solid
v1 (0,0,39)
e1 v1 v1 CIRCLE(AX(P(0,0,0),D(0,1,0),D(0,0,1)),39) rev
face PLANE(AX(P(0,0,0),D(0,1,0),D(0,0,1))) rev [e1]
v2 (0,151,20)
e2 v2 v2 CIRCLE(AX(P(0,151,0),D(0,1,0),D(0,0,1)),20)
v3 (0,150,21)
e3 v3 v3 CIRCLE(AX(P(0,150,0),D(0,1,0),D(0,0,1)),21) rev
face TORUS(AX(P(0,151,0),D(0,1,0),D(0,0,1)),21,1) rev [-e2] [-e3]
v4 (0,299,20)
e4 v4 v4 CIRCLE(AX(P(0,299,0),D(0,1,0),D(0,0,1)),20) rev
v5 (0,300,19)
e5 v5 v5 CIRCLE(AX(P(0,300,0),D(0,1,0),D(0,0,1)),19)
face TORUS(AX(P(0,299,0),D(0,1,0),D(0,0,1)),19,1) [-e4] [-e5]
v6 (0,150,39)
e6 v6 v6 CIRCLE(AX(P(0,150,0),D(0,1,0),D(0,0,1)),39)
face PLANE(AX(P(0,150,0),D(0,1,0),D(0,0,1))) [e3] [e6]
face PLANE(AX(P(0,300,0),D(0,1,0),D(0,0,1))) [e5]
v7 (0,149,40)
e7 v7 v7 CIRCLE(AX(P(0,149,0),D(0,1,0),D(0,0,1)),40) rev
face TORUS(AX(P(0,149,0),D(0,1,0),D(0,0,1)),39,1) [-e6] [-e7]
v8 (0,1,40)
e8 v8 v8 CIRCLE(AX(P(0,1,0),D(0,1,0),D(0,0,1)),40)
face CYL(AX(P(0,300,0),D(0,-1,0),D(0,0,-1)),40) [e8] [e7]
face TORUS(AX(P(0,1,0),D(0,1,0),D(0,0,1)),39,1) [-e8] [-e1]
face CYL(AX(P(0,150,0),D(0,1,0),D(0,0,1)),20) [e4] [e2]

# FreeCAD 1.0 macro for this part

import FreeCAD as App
import Part
import Sketcher

V = App.Vector
Q = App.Units.Quantity


def edges_at(feature, points):
    """Names of the edges that pass closest to the given points."""
    edges = feature.Shape.Edges
    near = lambda p: min(range(len(edges)), key=lambda i: edges[i].distToShape(Part.Vertex(*p))[0])
    return sorted({f"Edge{near(p) + 1}" for p in points})

doc = App.newDocument("Part")
body = doc.addObject("PartDesign::Body", "Body")

# Sketch on XZ plane
sketch1 = body.newObject("Sketcher::SketchObject", "Sketch")
sketch1.AttachmentSupport = (doc.getObject("XZ_Plane"), [""])
sketch1.MapMode = "FlatFace"
sketch1.addGeometry(Part.Circle(V(0, 0, 0), V(0, 0, 1), 40), False)
sketch1.addConstraint([
    Sketcher.Constraint("Coincident", 0, 3, -1, 1),
    Sketcher.Constraint("Diameter", 0, Q("80 mm")),
])
pad1 = body.newObject("PartDesign::Pad", "Pad")
pad1.Profile = sketch1
pad1.Length = 300
pad1.Reversed = True

# Sketch on XZ plane
sketch2 = body.newObject("Sketcher::SketchObject", "Sketch001")
sketch2.AttachmentSupport = (doc.getObject("XZ_Plane"), [""])
sketch2.MapMode = "FlatFace"
sketch2.AttachmentOffset = App.Placement(V(0, 0, -300), App.Rotation())
sketch2.addGeometry([
    Part.LineSegment(V(-73, -73, 0), V(-73, 73, 0)),  # 0
    Part.LineSegment(V(-73, 73, 0), V(73, 73, 0)),  # 1
    Part.LineSegment(V(73, 73, 0), V(73, -73, 0)),  # 2
    Part.LineSegment(V(73, -73, 0), V(-73, -73, 0)),  # 3
    Part.Circle(V(0, 0, 0), V(0, 0, 1), 20),  # 4
], False)
sketch2.addConstraint([
    Sketcher.Constraint("Coincident", 0, 2, 1, 1),
    Sketcher.Constraint("Coincident", 1, 2, 2, 1),
    Sketcher.Constraint("Coincident", 2, 2, 3, 1),
    Sketcher.Constraint("Coincident", 3, 2, 0, 1),
    Sketcher.Constraint("Vertical", 0),
    Sketcher.Constraint("Horizontal", 1),
    Sketcher.Constraint("Vertical", 2),
    Sketcher.Constraint("Horizontal", 3),
    Sketcher.Constraint("Coincident", 4, 3, -1, 1),
    Sketcher.Constraint("Symmetric", 0, 2, 2, 2, -1, 1),
    Sketcher.Constraint("Equal", 3, 0),
    Sketcher.Constraint("Diameter", 4, Q("40 mm")),
    Sketcher.Constraint("DistanceX", 1, 1, 1, 2, Q("146.124 mm")),
])
pocket1 = body.newObject("PartDesign::Pocket", "Pocket")
pocket1.Profile = sketch2
pocket1.Length = 150
pocket1.Reversed = True
doc.recompute()

fillet = body.newObject("PartDesign::Fillet", "Fillet")
fillet.Base = (pocket1, edges_at(pocket1, [(0, 150, -20)]))
fillet.Radius = 1
doc.recompute()

fillet2 = body.newObject("PartDesign::Fillet", "Fillet001")
fillet2.Base = (fillet, edges_at(fillet, [(0, 300, -20)]))
fillet2.Radius = 1
doc.recompute()

fillet3 = body.newObject("PartDesign::Fillet", "Fillet002")
fillet3.Base = (fillet2, edges_at(fillet2, [(0, 0, -40)]))
fillet3.Radius = 1
doc.recompute()

fillet4 = body.newObject("PartDesign::Fillet", "Fillet003")
fillet4.Base = (fillet3, edges_at(fillet3, [(0, 150, -40)]))
fillet4.Radius = 1

doc.recompute()
